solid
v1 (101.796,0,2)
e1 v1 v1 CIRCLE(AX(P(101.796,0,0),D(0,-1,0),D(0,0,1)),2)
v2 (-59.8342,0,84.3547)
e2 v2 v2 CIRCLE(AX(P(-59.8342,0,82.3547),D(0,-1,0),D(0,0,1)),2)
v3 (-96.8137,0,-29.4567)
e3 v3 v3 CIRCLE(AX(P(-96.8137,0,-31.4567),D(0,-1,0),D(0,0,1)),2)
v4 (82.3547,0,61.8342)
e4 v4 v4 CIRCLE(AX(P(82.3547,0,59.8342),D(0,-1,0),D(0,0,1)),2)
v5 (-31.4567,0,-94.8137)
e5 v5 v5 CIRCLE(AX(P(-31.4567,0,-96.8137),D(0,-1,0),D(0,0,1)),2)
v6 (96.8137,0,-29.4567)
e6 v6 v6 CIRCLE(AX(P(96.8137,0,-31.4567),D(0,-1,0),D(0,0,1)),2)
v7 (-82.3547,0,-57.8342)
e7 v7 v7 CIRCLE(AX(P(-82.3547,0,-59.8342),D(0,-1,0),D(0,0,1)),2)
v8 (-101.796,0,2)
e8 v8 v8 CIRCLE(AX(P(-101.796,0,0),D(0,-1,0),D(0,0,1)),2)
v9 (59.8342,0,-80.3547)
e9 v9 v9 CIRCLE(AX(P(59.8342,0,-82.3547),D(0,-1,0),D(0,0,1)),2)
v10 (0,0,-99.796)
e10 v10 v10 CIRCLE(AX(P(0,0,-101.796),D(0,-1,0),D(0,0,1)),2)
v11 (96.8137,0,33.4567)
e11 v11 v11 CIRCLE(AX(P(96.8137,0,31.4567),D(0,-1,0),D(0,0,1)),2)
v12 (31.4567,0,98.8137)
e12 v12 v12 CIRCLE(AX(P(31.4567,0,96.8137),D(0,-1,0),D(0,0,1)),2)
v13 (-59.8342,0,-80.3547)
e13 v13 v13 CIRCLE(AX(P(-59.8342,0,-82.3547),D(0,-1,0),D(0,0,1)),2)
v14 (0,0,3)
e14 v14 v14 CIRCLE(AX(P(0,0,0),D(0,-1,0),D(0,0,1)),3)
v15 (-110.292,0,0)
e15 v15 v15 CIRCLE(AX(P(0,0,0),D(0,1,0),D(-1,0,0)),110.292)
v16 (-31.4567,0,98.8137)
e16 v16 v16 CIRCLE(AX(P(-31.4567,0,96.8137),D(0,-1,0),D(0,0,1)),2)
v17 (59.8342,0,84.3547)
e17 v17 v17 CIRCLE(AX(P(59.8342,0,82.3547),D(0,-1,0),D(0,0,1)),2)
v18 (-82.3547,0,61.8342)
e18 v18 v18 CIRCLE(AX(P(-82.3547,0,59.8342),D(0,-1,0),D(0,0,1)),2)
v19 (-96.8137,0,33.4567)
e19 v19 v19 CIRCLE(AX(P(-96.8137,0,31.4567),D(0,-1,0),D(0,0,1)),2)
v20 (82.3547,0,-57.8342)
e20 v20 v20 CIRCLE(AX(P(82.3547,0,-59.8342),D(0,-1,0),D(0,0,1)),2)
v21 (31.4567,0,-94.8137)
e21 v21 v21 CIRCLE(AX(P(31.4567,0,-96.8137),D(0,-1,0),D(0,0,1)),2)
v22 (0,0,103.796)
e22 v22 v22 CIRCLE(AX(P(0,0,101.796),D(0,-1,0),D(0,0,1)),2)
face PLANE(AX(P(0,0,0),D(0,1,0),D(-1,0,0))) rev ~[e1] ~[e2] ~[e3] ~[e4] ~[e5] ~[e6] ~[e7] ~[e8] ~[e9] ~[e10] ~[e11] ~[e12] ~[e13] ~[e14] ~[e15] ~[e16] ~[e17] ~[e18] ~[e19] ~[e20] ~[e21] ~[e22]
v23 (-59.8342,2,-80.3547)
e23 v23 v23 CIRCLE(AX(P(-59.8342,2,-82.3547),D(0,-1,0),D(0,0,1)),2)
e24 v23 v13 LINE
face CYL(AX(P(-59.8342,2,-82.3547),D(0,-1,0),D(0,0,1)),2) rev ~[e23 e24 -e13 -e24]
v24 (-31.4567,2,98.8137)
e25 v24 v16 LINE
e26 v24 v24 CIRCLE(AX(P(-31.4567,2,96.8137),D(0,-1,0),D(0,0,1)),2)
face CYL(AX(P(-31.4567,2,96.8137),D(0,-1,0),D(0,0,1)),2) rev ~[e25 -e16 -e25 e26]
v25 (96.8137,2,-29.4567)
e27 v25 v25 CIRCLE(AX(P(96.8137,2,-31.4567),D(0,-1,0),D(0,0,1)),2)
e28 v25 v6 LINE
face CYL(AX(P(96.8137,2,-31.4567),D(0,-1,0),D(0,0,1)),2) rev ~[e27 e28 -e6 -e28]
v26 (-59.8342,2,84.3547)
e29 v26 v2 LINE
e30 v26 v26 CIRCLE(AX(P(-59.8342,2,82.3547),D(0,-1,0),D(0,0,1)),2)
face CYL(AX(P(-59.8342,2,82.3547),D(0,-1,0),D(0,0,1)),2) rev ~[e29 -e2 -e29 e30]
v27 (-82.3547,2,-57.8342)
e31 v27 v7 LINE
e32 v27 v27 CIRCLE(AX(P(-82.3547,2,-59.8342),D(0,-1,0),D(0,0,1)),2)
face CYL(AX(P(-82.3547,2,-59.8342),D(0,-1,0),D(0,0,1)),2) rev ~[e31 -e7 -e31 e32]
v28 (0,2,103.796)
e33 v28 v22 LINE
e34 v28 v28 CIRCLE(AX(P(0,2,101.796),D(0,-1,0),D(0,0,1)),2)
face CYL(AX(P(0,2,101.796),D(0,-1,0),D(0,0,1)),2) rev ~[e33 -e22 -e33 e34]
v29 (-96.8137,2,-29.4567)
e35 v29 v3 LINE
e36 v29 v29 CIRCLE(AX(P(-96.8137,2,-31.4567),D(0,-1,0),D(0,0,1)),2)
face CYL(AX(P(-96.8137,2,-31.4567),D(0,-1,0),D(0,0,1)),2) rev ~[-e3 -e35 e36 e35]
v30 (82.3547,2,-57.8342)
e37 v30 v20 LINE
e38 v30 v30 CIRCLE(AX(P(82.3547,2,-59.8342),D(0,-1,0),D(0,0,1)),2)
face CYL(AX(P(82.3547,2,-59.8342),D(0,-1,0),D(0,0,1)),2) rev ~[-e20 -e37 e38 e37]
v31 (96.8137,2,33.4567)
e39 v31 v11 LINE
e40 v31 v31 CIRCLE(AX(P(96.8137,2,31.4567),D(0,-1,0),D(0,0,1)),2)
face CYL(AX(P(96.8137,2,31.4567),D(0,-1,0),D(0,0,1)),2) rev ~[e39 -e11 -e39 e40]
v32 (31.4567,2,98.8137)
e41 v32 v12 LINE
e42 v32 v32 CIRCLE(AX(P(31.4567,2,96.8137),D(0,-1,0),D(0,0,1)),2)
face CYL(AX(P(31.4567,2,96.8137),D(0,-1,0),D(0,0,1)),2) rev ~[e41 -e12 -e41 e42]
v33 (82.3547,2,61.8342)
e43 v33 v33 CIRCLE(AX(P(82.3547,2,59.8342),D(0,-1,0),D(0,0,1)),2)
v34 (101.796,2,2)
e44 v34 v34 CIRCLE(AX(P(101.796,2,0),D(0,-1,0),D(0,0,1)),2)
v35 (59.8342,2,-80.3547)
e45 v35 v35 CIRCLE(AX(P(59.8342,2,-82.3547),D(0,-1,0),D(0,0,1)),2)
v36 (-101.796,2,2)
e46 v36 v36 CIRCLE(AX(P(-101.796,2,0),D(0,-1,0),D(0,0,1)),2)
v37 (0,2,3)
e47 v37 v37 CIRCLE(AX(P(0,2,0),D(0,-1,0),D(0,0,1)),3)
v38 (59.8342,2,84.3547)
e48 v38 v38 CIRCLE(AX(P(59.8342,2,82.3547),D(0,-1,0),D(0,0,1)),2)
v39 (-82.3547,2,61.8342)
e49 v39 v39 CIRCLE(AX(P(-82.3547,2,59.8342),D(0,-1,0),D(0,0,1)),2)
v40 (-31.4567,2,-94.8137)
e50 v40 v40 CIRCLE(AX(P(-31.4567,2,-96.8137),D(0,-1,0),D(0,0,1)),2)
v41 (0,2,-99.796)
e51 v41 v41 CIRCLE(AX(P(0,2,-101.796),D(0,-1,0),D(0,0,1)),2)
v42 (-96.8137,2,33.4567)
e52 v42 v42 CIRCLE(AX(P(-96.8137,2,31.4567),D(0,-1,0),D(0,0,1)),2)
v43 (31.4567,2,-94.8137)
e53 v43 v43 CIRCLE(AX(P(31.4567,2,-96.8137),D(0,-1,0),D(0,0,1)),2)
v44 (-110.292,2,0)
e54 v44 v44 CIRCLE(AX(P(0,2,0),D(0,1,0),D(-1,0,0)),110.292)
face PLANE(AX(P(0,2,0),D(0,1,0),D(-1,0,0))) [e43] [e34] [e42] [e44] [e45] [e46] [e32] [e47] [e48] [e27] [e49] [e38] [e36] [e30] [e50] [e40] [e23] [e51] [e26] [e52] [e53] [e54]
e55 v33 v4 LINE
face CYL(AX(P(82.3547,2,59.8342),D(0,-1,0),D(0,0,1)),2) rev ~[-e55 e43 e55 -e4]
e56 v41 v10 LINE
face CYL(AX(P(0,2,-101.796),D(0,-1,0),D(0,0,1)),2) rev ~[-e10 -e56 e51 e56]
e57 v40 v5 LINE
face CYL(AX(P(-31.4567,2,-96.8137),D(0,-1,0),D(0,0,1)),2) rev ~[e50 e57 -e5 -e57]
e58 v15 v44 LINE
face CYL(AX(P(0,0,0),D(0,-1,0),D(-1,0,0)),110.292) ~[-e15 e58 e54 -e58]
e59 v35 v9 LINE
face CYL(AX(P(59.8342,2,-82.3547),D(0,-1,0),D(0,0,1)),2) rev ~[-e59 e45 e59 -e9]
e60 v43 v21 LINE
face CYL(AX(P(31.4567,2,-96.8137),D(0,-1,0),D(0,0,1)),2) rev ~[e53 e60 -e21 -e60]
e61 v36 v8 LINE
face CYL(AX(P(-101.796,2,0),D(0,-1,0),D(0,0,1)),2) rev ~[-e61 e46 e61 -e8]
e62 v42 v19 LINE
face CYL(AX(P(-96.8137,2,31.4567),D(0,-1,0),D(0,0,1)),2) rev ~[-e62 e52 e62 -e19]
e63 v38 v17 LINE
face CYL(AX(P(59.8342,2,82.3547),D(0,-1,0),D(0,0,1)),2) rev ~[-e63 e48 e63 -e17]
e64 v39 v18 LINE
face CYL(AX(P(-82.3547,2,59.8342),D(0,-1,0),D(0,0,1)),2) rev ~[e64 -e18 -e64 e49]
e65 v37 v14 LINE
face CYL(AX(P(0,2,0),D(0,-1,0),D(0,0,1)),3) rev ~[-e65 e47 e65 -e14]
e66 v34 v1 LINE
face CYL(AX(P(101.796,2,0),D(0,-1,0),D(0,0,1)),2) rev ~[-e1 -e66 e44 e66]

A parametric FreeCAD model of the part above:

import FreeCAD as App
import Part
import Sketcher

V = App.Vector

doc = App.newDocument("Part")
body = doc.addObject("PartDesign::Body", "Body")

# Sketch on XZ plane
sketch1 = doc.addObject("Sketcher::SketchObject", "Sketch")
body.addObject(sketch1)
sketch1.AttachmentSupport = (doc.XZ_Plane, [""])
sketch1.MapMode = "FlatFace"
sketch1.addGeometry(Part.Circle(V(0, 0, 0), V(0, 0, 1), 110), False)
sketch1.addConstraint([
    Sketcher.Constraint("Coincident", 0, 3, -1, 1),
    Sketcher.Constraint("Diameter", 0, 220.584),
])
pad1 = doc.addObject("PartDesign::Pad", "Pad")
body.addObject(pad1)
pad1.Profile = sketch1
pad1.Length = 2
pad1.Reversed = True

# Sketch on XZ plane
sketch2 = doc.addObject("Sketcher::SketchObject", "Sketch001")
body.addObject(sketch2)
sketch2.AttachmentSupport = (doc.XZ_Plane, [""])
sketch2.MapMode = "FlatFace"
sketch2.AttachmentOffset = App.Placement(V(0, 0, -2), App.Rotation())
sketch2.addGeometry([
    Part.Circle(V(-96.8, -31.5, 0), V(0, 0, 1), 2),  # 0
    Part.Circle(V(-82.4, -59.8, 0), V(0, 0, 1), 2),  # 1
    Part.Circle(V(-59.8, -82.4, 0), V(0, 0, 1), 2),  # 2
    Part.Circle(V(-31.5, -96.8, 0), V(0, 0, 1), 2),  # 3
    Part.Circle(V(31.5, -96.8, 0), V(0, 0, 1), 2),  # 4
    Part.Circle(V(59.8, -82.4, 0), V(0, 0, 1), 2),  # 5
    Part.Circle(V(82.4, -59.8, 0), V(0, 0, 1), 2),  # 6
    Part.Circle(V(96.8, -31.5, 0), V(0, 0, 1), 2),  # 7
    Part.Circle(V(101.8, 0, 0), V(0, 0, 1), 2),  # 8
    Part.Circle(V(96.8, 31.5, 0), V(0, 0, 1), 2),  # 9
    Part.Circle(V(82.4, 59.8, 0), V(0, 0, 1), 2),  # 10
    Part.Circle(V(59.8, 82.4, 0), V(0, 0, 1), 2),  # 11
    Part.Circle(V(31.5, 96.8, 0), V(0, 0, 1), 2),  # 12
    Part.Circle(V(0, 101.8, 0), V(0, 0, 1), 2),  # 13
    Part.Circle(V(-31.5, 96.8, 0), V(0, 0, 1), 2),  # 14
    Part.Circle(V(-59.8, 82.4, 0), V(0, 0, 1), 2),  # 15
    Part.Circle(V(-82.4, 59.8, 0), V(0, 0, 1), 2),  # 16
    Part.Circle(V(-96.8, 31.5, 0), V(0, 0, 1), 2),  # 17
    Part.Circle(V(-101.8, 0, 0), V(0, 0, 1), 2),  # 18
    Part.Circle(V(0, -101.8, 0), V(0, 0, 1), 2),  # 19
], False)
sketch2.addConstraint([
    Sketcher.Constraint("Equal", 0, 1),
    Sketcher.Constraint("Equal", 1, 2),
    Sketcher.Constraint("Equal", 2, 3),
    Sketcher.Constraint("Equal", 3, 4),
    Sketcher.Constraint("Equal", 4, 5),
    Sketcher.Constraint("Equal", 5, 6),
    Sketcher.Constraint("Equal", 6, 7),
    Sketcher.Constraint("Equal", 7, 8),
    Sketcher.Constraint("Equal", 8, 9),
    Sketcher.Constraint("Equal", 9, 10),
    Sketcher.Constraint("Equal", 10, 11),
    Sketcher.Constraint("Equal", 11, 12),
    Sketcher.Constraint("Equal", 12, 13),
    Sketcher.Constraint("Equal", 13, 14),
    Sketcher.Constraint("Equal", 14, 15),
    Sketcher.Constraint("Equal", 15, 16),
    Sketcher.Constraint("Equal", 16, 17),
    Sketcher.Constraint("Equal", 17, 18),
    Sketcher.Constraint("Equal", 18, 19),
    Sketcher.Constraint("Symmetric", 0, 3, 9, 3, -1, 1),
    Sketcher.Constraint("Symmetric", 1, 3, 10, 3, -1, 1),
    Sketcher.Constraint("Symmetric", 2, 3, 11, 3, -1, 1),
    Sketcher.Constraint("Symmetric", 3, 3, 12, 3, -1, 1),
    Sketcher.Constraint("Symmetric", 4, 3, 14, 3, -1, 1),
    Sketcher.Constraint("Symmetric", 5, 3, 15, 3, -1, 1),
    Sketcher.Constraint("Symmetric", 6, 3, 16, 3, -1, 1),
    Sketcher.Constraint("Symmetric", 7, 3, 17, 3, -1, 1),
    Sketcher.Constraint("Symmetric", 8, 3, 18, 3, -1, 1),
    Sketcher.Constraint("Symmetric", 13, 3, 19, 3, -1, 1),
    Sketcher.Constraint("Symmetric", 3, 3, 4, 3, -2),
    Sketcher.Constraint("Symmetric", 2, 3, 5, 3, -2),
    Sketcher.Constraint("Symmetric", 1, 3, 6, 3, -2),
    Sketcher.Constraint("Symmetric", 0, 3, 7, 3, -2),
    Sketcher.Constraint("PointOnObject", 8, 3, -1),
    Sketcher.Constraint("PointOnObject", 13, 3, -2),
    Sketcher.Constraint("Diameter", 0, 4.0),
    Sketcher.Constraint("DistanceX", -1, 1, 8, 3, 101.796),
    Sketcher.Constraint("DistanceY", -1, 1, 13, 3, 101.796),
    Sketcher.Constraint("DistanceX", 0, 3, 1, 3, 14.459),
    Sketcher.Constraint("DistanceY", 2, 3, 0, 3, 50.898),
    Sketcher.Constraint("DistanceY", 3, 3, 2, 3, 14.459),
    Sketcher.Constraint("DistanceX", 1, 3, 3, 3, 50.898),
    Sketcher.Constraint("DistanceX", 2, 3, 4, 3, 91.291),
    Sketcher.Constraint("DistanceY", 6, 3, 9, 3, 91.291),
    Sketcher.Constraint("DistanceX", 0, 3, -1, 1, 96.8137),
    Sketcher.Constraint("DistanceY", 0, 3, -1, 1, 31.4567),
])
doc.recompute()
hole = doc.addObject("PartDesign::Hole", "Hole")
body.addObject(hole)
hole.Profile = sketch2
hole.ThreadType = "None"
hole.Diameter = 4
hole.DepthType = "ThroughAll"
hole.Reversed = True

# Sketch on XZ plane
sketch3 = doc.addObject("Sketcher::SketchObject", "Sketch002")
body.addObject(sketch3)
sketch3.AttachmentSupport = (doc.XZ_Plane, [""])
sketch3.MapMode = "FlatFace"
sketch3.AttachmentOffset = App.Placement(V(0, 0, -2), App.Rotation())
sketch3.addGeometry(Part.Circle(V(0, 0, 0), V(0, 0, 1), 3), False)
sketch3.addConstraint([
    Sketcher.Constraint("Coincident", 0, 3, -1, 1),
    Sketcher.Constraint("Diameter", 0, 6.0),
])
doc.recompute()
hole2 = doc.addObject("PartDesign::Hole", "Hole001")
body.addObject(hole2)
hole2.Profile = sketch3
hole2.ThreadType = "None"
hole2.Diameter = 6
hole2.DepthType = "ThroughAll"
hole2.Reversed = True

doc.recompute()
